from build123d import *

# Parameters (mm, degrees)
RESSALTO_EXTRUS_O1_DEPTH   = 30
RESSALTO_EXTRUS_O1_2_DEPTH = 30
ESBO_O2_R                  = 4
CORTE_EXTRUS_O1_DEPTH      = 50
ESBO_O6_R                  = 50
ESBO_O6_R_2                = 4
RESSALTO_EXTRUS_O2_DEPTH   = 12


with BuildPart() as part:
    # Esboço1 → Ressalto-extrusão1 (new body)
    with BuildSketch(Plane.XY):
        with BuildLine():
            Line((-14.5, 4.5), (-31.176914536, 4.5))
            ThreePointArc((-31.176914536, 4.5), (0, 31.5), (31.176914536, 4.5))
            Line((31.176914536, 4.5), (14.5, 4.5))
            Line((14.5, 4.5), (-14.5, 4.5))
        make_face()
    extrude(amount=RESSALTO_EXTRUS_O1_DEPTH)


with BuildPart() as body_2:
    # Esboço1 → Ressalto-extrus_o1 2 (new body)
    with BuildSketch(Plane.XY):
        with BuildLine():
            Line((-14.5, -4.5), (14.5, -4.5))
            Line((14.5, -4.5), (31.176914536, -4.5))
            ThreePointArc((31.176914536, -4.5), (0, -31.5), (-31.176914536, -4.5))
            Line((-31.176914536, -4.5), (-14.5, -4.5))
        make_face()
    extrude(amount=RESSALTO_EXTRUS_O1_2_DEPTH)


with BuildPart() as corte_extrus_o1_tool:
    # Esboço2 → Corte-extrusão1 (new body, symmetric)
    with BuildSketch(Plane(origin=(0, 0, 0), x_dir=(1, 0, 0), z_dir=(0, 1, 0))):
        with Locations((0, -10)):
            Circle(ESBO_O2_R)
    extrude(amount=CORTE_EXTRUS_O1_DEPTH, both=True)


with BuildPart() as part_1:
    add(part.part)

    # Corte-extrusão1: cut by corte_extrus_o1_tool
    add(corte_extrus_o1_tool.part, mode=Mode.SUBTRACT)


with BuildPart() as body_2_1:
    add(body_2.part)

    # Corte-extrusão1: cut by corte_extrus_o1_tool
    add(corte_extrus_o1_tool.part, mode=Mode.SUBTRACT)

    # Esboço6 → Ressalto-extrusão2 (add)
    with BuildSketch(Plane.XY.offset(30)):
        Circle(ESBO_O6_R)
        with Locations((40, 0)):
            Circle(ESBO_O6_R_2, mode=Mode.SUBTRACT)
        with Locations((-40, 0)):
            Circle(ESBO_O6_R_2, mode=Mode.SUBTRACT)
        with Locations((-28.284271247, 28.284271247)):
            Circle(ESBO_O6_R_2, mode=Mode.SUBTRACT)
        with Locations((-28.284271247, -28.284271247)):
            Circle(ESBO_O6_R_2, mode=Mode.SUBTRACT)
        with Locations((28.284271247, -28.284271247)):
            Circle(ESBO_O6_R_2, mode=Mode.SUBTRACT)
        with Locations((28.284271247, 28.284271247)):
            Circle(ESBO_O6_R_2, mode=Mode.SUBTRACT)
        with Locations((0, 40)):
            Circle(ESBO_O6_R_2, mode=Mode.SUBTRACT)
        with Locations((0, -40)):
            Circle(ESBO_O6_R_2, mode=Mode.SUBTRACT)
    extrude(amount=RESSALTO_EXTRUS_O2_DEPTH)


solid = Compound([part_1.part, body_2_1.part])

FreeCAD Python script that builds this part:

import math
import FreeCAD as App
import Part
import Sketcher

V = App.Vector
Q = App.Units.Quantity

doc = App.newDocument("Part")
body = doc.addObject("PartDesign::Body", "Body")

# Sketch on XY plane
sketch1 = body.newObject("Sketcher::SketchObject", "Sketch")
sketch1.AttachmentSupport = (doc.getObject("XY_Plane"), [""])
sketch1.MapMode = "FlatFace"
sketch1.addGeometry([
    Part.ArcOfCircle(Part.Circle(V(0, 0, 0), V(0, 0, 1), 32), math.radians(8), math.radians(172)),
    Part.LineSegment(V(-31, 4, 0), V(31, 4, 0)),
], False)
sketch1.addConstraint([
    Sketcher.Constraint("Coincident", 0, 1, 1, 2),
    Sketcher.Constraint("Coincident", 1, 1, 0, 2),
    Sketcher.Constraint("Horizontal", 1),
    Sketcher.Constraint("Coincident", 0, 3, -1, 1),
    Sketcher.Constraint("Radius", 0, Q("31.5 mm")),
    Sketcher.Constraint("DistanceY", -1, 1, 0, 1, Q("4.5 mm")),
])
pad1 = body.newObject("PartDesign::Pad", "Pad")
pad1.Profile = sketch1
pad1.Length = 30
body2 = doc.addObject("PartDesign::Body", "Body001")

# Sketch on XY plane
sketch2 = body2.newObject("Sketcher::SketchObject", "Sketch001")
sketch2.AttachmentSupport = (doc.getObject("XY_Plane001"), [""])
sketch2.MapMode = "FlatFace"
sketch2.addGeometry([
    Part.ArcOfCircle(Part.Circle(V(0, 0, 0), V(0, 0, 1), 32), math.radians(-172), math.radians(-8)),
    Part.LineSegment(V(31, -4, 0), V(-31, -4, 0)),
], False)
sketch2.addConstraint([
    Sketcher.Constraint("Coincident", 0, 1, 1, 2),
    Sketcher.Constraint("Coincident", 1, 1, 0, 2),
    Sketcher.Constraint("Horizontal", 1),
    Sketcher.Constraint("Coincident", 0, 3, -1, 1),
    Sketcher.Constraint("Radius", 0, Q("31.5 mm")),
    Sketcher.Constraint("DistanceY", 0, 1, -1, 1, Q("4.5 mm")),
])
pad2 = body2.newObject("PartDesign::Pad", "Pad001")
pad2.Profile = sketch2
pad2.Length = 30
body3 = doc.addObject("PartDesign::Body", "Body002")

# Sketch on XZ plane
sketch3 = body3.newObject("Sketcher::SketchObject", "Sketch002")
sketch3.AttachmentSupport = (doc.getObject("XZ_Plane002"), [""])
sketch3.MapMode = "FlatFace"
sketch3.addGeometry(Part.Circle(V(0, 10, 0), V(0, 0, 1), 4), False)
sketch3.addConstraint([
    Sketcher.Constraint("PointOnObject", 0, 3, -2),
    Sketcher.Constraint("Diameter", 0, Q("8 mm")),
    Sketcher.Constraint("DistanceY", -1, 1, 0, 3, Q("10 mm")),
])
pad3 = body3.newObject("PartDesign::Pad", "Pad002")
pad3.Profile = sketch3
pad3.Length = 100
pad3.Midplane = True
doc.recompute()

body4 = doc.addObject("PartDesign::Body", "Body003")
body4.BaseFeature = body3
boolean = body.newObject("PartDesign::Boolean", "Boolean")
boolean.Type = "Cut"
boolean.addObjects([body4])
doc.recompute()

boolean2 = body2.newObject("PartDesign::Boolean", "Boolean001")
boolean2.Type = "Cut"
boolean2.addObjects([body3])

# Sketch on XY plane
sketch4 = body2.newObject("Sketcher::SketchObject", "Sketch003")
sketch4.AttachmentSupport = (doc.getObject("XY_Plane001"), [""])
sketch4.MapMode = "FlatFace"
sketch4.AttachmentOffset = App.Placement(V(0, 0, 30), App.Rotation())
sketch4.addGeometry([
    Part.Circle(V(0, 0, 0), V(0, 0, 1), 50),  # 0
    Part.Circle(V(-28.3, -28.3, 0), V(0, 0, 1), 4),  # 1
    Part.Circle(V(0, -40, 0), V(0, 0, 1), 4),  # 2
    Part.Circle(V(28.3, -28.3, 0), V(0, 0, 1), 4),  # 3
    Part.Circle(V(-40, 0, 0), V(0, 0, 1), 4),  # 4
    Part.Circle(V(-28.3, 28.3, 0), V(0, 0, 1), 4),  # 5
    Part.Circle(V(40, 0, 0), V(0, 0, 1), 4),  # 6
    Part.Circle(V(0, 40, 0), V(0, 0, 1), 4),  # 7
    Part.Circle(V(28.3, 28.3, 0), V(0, 0, 1), 4),  # 8
], False)
sketch4.addConstraint([
    Sketcher.Constraint("Coincident", 0, 3, -1, 1),
    Sketcher.Constraint("Equal", 1, 2),
    Sketcher.Constraint("Equal", 2, 3),
    Sketcher.Constraint("Equal", 3, 4),
    Sketcher.Constraint("Equal", 4, 5),
    Sketcher.Constraint("Equal", 5, 6),
    Sketcher.Constraint("Equal", 6, 7),
    Sketcher.Constraint("Equal", 7, 8),
    Sketcher.Constraint("Symmetric", 3, 3, 5, 3, -1, 1),
    Sketcher.Constraint("Symmetric", 4, 3, 6, 3, -1, 1),
    Sketcher.Constraint("Symmetric", 2, 3, 7, 3, -1, 1),
    Sketcher.Constraint("Symmetric", 1, 3, 8, 3, -1, 1),
    Sketcher.Constraint("Symmetric", 1, 3, 3, 3, -2),
    Sketcher.Constraint("PointOnObject", 2, 3, -2),
    Sketcher.Constraint("PointOnObject", 4, 3, -1),
    Sketcher.Constraint("Diameter", 0, Q("100 mm")),
    Sketcher.Constraint("Diameter", 1, Q("8 mm")),
    Sketcher.Constraint("DistanceY", 2, 3, -1, 1, Q("40 mm")),
    Sketcher.Constraint("DistanceX", 4, 3, -1, 1, Q("40 mm")),
    Sketcher.Constraint("DistanceX", 1, 3, -1, 1, Q("28.284271 mm")),
    Sketcher.Constraint("DistanceY", 1, 3, -1, 1, Q("28.284271 mm")),
])
pad4 = body2.newObject("PartDesign::Pad", "Pad003")
pad4.Profile = sketch4
pad4.Length = 12

doc.recompute()
